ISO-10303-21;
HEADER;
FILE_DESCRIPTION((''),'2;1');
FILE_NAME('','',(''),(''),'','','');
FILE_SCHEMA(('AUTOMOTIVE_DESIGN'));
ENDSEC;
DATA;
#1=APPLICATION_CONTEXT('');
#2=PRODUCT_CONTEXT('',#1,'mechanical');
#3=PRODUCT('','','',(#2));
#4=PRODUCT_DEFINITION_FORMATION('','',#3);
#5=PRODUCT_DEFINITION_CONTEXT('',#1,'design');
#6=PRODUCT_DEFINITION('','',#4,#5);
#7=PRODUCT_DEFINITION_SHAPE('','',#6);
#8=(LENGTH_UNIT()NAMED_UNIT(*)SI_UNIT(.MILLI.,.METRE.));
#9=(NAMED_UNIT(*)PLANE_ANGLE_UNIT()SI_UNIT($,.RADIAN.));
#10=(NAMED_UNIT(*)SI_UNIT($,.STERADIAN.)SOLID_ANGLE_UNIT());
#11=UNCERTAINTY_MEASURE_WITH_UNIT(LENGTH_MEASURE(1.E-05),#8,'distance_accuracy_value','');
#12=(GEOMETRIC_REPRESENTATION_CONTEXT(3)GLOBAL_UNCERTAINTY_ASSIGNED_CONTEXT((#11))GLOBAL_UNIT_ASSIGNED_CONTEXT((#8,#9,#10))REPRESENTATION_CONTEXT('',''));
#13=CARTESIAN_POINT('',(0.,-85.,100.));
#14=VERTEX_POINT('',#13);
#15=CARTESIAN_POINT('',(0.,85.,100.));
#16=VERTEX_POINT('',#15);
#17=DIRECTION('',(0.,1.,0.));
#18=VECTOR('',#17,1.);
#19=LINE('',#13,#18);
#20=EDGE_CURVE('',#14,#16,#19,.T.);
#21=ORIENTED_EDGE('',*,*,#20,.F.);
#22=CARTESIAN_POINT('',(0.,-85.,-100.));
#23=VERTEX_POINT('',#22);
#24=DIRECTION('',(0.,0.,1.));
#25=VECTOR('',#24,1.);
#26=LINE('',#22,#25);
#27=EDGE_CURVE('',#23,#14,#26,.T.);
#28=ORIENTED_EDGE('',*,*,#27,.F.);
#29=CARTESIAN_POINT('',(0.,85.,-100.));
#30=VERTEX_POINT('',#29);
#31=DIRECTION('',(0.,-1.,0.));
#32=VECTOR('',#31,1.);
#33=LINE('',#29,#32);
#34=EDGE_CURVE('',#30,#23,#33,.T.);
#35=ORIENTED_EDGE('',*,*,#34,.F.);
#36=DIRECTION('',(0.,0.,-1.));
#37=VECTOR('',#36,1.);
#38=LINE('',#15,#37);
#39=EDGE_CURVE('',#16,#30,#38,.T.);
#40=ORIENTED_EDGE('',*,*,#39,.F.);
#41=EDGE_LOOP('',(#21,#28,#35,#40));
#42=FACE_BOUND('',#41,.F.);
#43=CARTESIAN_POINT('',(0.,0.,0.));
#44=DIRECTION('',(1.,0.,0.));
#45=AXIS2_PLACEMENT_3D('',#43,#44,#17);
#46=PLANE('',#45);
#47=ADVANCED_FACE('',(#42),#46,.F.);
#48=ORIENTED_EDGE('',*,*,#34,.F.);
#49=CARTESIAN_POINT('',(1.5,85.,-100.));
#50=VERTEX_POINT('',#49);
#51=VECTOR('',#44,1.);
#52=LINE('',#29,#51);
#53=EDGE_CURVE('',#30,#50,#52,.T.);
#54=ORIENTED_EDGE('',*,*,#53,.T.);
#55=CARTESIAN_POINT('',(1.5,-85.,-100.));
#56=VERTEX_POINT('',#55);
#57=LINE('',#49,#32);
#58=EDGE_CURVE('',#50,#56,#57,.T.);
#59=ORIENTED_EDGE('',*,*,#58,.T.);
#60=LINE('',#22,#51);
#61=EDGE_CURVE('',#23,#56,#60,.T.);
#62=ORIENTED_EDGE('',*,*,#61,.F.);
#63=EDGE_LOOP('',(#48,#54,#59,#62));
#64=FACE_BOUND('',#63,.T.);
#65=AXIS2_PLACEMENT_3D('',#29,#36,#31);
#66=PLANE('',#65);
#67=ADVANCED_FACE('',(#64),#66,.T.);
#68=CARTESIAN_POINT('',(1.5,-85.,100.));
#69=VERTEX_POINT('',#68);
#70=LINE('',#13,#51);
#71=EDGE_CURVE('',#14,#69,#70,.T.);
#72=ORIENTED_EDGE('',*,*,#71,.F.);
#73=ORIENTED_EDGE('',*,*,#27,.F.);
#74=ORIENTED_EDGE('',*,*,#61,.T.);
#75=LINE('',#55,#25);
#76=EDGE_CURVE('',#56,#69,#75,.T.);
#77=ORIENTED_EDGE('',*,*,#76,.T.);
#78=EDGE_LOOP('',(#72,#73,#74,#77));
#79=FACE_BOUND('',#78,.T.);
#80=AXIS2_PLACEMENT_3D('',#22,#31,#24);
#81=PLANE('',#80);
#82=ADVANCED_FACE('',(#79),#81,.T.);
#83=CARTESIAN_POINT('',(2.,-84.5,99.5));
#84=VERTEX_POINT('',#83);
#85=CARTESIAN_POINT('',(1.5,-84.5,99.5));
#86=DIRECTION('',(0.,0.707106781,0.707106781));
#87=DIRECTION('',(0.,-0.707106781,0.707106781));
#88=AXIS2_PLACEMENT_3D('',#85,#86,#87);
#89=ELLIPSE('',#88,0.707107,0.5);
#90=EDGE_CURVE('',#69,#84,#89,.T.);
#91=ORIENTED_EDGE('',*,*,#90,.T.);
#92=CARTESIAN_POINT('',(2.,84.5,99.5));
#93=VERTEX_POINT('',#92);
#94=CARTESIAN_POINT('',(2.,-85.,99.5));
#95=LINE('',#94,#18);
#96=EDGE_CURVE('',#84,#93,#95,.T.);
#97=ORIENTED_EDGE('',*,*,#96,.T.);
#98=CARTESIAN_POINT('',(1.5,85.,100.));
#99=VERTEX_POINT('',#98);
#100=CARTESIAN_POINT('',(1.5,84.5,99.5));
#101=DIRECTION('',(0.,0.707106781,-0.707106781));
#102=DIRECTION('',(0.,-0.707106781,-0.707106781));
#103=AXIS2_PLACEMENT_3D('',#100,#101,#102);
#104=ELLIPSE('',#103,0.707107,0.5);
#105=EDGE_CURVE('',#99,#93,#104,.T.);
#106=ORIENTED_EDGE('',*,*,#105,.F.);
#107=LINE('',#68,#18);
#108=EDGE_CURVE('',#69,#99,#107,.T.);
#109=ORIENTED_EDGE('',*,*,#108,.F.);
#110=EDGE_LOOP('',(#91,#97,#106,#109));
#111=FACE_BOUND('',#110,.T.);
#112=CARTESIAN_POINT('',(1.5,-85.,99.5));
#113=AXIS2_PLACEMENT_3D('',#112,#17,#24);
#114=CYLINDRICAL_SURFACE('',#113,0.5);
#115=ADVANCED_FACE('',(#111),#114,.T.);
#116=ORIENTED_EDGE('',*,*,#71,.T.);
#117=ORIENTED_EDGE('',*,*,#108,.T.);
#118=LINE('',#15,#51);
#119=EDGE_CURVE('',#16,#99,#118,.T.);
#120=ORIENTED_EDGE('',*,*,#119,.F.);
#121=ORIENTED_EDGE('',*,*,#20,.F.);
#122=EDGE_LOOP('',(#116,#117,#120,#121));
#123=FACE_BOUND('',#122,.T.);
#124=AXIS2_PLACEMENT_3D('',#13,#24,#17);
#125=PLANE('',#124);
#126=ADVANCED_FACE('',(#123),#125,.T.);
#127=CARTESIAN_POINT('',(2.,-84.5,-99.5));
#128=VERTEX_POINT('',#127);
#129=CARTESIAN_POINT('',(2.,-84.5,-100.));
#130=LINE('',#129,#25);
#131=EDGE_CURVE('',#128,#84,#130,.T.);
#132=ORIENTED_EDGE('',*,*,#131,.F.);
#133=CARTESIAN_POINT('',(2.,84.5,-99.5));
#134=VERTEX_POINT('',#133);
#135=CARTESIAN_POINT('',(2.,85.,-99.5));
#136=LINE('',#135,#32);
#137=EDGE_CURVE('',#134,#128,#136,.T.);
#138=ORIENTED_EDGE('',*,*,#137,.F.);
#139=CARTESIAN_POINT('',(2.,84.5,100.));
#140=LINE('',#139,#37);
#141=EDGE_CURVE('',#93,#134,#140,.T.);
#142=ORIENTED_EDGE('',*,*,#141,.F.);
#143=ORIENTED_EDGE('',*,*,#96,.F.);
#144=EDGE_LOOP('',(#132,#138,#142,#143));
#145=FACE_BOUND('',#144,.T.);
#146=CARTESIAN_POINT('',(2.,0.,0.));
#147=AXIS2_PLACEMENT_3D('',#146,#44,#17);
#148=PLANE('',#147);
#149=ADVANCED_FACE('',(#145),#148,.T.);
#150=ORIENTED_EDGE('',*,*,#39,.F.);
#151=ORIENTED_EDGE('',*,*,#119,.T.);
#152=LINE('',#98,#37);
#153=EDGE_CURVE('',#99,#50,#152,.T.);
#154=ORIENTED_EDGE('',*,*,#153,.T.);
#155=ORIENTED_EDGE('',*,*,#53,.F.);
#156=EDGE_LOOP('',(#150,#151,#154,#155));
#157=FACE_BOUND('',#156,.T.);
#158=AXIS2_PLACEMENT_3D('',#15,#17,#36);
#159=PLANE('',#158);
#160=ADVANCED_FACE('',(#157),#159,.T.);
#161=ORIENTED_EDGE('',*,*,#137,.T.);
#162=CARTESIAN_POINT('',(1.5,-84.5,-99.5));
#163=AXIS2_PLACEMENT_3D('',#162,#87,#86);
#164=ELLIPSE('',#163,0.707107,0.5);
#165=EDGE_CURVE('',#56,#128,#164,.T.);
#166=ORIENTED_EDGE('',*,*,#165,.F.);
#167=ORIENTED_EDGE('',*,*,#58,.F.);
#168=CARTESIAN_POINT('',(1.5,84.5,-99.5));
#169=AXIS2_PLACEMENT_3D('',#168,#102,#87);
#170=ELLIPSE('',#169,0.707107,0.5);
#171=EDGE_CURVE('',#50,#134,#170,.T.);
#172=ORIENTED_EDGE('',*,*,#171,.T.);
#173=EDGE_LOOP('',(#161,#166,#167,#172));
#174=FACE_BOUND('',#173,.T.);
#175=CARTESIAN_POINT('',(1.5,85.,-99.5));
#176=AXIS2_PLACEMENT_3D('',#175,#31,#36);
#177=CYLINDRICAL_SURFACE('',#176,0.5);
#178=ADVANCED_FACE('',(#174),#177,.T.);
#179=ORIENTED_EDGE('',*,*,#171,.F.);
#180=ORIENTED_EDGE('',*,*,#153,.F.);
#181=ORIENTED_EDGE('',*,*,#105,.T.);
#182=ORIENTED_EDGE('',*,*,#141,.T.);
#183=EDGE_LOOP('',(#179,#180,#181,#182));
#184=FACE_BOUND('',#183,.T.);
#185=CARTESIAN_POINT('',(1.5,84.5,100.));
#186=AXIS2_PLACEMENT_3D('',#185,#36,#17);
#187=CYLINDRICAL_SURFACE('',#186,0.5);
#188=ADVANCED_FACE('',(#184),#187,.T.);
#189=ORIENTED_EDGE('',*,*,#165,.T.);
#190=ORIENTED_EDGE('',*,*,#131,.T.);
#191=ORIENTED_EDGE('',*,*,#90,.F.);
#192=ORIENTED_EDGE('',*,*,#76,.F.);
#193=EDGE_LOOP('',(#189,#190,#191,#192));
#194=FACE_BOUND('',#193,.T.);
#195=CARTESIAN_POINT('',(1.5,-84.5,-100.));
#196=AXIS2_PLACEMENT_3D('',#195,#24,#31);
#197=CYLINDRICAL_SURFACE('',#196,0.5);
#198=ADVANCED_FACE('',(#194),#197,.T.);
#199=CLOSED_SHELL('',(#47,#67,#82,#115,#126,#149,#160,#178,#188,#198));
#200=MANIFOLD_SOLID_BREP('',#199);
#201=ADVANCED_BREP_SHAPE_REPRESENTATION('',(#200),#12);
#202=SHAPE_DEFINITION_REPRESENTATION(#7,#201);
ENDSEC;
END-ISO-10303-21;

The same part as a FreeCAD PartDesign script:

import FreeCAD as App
import Part
import Sketcher
Q = App.Units.Quantity


def edges_at(feature, points):
    """Names of the edges that pass closest to the given points."""
    edges = feature.Shape.Edges
    near = lambda p: min(range(len(edges)), key=lambda i: edges[i].distToShape(Part.Vertex(*p))[0])
    return sorted({f"Edge{near(p) + 1}" for p in points})


def add_polygon(sketch, points):
    """Adds a closed chain of lines whose ends are joined by coincident constraints."""
    first, n = sketch.GeometryCount, len(points)
    for a, b in zip(points, points[1:] + points[:1]):
        sketch.addGeometry(Part.LineSegment(App.Vector(*a, 0), App.Vector(*b, 0)), False)
    for i in range(n):
        sketch.addConstraint(Sketcher.Constraint("Coincident", first + i, 2, first + (i + 1) % n, 1))

doc = App.newDocument("Part")
body = doc.addObject("PartDesign::Body", "Body")

# Sketch on YZ plane
sketch1 = body.newObject("Sketcher::SketchObject", "Sketch")
sketch1.AttachmentSupport = (doc.getObject("YZ_Plane"), [""])
sketch1.MapMode = "FlatFace"
add_polygon(sketch1, [(85, 100), (-85, 100), (-85, -100), (85, -100)])  # lines 0-3
sketch1.addConstraint([
    Sketcher.Constraint("Horizontal", 0),
    Sketcher.Constraint("Vertical", 1),
    Sketcher.Constraint("Horizontal", 2),
    Sketcher.Constraint("Vertical", 3),
    Sketcher.Constraint("Symmetric", 0, 2, 2, 2, -1, 1),
    Sketcher.Constraint("DistanceX", 0, 2, 0, 1, Q("170 mm")),
    Sketcher.Constraint("DistanceY", 1, 2, 1, 1, Q("200 mm")),
])
pad1 = body.newObject("PartDesign::Pad", "Pad")
pad1.Profile = sketch1
pad1.Length = 2
doc.recompute()

fillet = body.newObject("PartDesign::Fillet", "Fillet")
fillet.Base = (pad1, edges_at(pad1, [
    (2, -85, 0),
    (2, 0, -100),
    (2, 85, 0),
    (2, 0, 100),
]))
fillet.Radius = 0.5

doc.recompute()
